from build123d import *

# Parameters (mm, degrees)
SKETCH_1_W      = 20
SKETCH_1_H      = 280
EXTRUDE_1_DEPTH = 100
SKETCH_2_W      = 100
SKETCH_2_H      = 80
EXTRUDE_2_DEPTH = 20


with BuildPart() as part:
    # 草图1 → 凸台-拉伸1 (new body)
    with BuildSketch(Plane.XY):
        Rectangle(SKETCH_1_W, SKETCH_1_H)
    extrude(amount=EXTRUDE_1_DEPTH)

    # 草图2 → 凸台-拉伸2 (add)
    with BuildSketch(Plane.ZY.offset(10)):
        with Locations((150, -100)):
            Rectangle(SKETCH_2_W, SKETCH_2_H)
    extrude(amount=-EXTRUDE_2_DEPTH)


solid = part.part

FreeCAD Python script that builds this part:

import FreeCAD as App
import Part
import Sketcher
from FreeCAD import Vector


def add_polygon(sketch, points):
    """Adds a closed chain of lines whose ends are joined by coincident constraints."""
    first, n = sketch.GeometryCount, len(points)
    for a, b in zip(points, points[1:] + points[:1]):
        sketch.addGeometry(Part.LineSegment(App.Vector(*a, 0), App.Vector(*b, 0)), False)
    for i in range(n):
        sketch.addConstraint(Sketcher.Constraint("Coincident", first + i, 2, first + (i + 1) % n, 1))

doc = App.newDocument("Part")
body = doc.addObject("PartDesign::Body", "Body")

# Sketch on XY plane
sketch1 = body.newObject("Sketcher::SketchObject", "Sketch")
sketch1.AttachmentSupport = (doc.getObject("XY_Plane"), [""])
sketch1.MapMode = "FlatFace"
add_polygon(sketch1, [(-10, 140), (-10, -140), (10, -140), (10, 140)])  # lines 0-3
sketch1.addConstraint([
    Sketcher.Constraint("Vertical", 0),
    Sketcher.Constraint("Horizontal", 1),
    Sketcher.Constraint("Vertical", 2),
    Sketcher.Constraint("Horizontal", 3),
    Sketcher.Constraint("Symmetric", 0, 2, 2, 2, -1, 1),
    Sketcher.Constraint("DistanceX", 1, 1, 1, 2, 20.0),
    Sketcher.Constraint("DistanceY", 0, 2, 0, 1, 280.0),
])
pad1 = body.newObject("PartDesign::Pad", "Pad")
pad1.Profile = sketch1
pad1.Length = 100

# Sketch on YZ plane
sketch2 = body.newObject("Sketcher::SketchObject", "Sketch001")
sketch2.AttachmentSupport = (doc.getObject("YZ_Plane"), [""])
sketch2.MapMode = "FlatFace"
sketch2.AttachmentOffset = App.Placement(Vector(0, 0, -10), App.Rotation())
add_polygon(sketch2, [(-60, 100), (-140, 100), (-140, 200), (-60, 200)])  # lines 0-3
sketch2.addConstraint([
    Sketcher.Constraint("Horizontal", 0),
    Sketcher.Constraint("Vertical", 1),
    Sketcher.Constraint("Horizontal", 2),
    Sketcher.Constraint("Vertical", 3),
    Sketcher.Constraint("DistanceX", 0, 2, 0, 1, 80.0),
    Sketcher.Constraint("DistanceY", 1, 1, 1, 2, 100.0),
    Sketcher.Constraint("DistanceX", 0, 2, -1, 1, 140.0),
    Sketcher.Constraint("DistanceY", -1, 1, 0, 2, 100.0),
])
pad2 = body.newObject("PartDesign::Pad", "Pad001")
pad2.Profile = sketch2
pad2.Length = 20

doc.recompute()
